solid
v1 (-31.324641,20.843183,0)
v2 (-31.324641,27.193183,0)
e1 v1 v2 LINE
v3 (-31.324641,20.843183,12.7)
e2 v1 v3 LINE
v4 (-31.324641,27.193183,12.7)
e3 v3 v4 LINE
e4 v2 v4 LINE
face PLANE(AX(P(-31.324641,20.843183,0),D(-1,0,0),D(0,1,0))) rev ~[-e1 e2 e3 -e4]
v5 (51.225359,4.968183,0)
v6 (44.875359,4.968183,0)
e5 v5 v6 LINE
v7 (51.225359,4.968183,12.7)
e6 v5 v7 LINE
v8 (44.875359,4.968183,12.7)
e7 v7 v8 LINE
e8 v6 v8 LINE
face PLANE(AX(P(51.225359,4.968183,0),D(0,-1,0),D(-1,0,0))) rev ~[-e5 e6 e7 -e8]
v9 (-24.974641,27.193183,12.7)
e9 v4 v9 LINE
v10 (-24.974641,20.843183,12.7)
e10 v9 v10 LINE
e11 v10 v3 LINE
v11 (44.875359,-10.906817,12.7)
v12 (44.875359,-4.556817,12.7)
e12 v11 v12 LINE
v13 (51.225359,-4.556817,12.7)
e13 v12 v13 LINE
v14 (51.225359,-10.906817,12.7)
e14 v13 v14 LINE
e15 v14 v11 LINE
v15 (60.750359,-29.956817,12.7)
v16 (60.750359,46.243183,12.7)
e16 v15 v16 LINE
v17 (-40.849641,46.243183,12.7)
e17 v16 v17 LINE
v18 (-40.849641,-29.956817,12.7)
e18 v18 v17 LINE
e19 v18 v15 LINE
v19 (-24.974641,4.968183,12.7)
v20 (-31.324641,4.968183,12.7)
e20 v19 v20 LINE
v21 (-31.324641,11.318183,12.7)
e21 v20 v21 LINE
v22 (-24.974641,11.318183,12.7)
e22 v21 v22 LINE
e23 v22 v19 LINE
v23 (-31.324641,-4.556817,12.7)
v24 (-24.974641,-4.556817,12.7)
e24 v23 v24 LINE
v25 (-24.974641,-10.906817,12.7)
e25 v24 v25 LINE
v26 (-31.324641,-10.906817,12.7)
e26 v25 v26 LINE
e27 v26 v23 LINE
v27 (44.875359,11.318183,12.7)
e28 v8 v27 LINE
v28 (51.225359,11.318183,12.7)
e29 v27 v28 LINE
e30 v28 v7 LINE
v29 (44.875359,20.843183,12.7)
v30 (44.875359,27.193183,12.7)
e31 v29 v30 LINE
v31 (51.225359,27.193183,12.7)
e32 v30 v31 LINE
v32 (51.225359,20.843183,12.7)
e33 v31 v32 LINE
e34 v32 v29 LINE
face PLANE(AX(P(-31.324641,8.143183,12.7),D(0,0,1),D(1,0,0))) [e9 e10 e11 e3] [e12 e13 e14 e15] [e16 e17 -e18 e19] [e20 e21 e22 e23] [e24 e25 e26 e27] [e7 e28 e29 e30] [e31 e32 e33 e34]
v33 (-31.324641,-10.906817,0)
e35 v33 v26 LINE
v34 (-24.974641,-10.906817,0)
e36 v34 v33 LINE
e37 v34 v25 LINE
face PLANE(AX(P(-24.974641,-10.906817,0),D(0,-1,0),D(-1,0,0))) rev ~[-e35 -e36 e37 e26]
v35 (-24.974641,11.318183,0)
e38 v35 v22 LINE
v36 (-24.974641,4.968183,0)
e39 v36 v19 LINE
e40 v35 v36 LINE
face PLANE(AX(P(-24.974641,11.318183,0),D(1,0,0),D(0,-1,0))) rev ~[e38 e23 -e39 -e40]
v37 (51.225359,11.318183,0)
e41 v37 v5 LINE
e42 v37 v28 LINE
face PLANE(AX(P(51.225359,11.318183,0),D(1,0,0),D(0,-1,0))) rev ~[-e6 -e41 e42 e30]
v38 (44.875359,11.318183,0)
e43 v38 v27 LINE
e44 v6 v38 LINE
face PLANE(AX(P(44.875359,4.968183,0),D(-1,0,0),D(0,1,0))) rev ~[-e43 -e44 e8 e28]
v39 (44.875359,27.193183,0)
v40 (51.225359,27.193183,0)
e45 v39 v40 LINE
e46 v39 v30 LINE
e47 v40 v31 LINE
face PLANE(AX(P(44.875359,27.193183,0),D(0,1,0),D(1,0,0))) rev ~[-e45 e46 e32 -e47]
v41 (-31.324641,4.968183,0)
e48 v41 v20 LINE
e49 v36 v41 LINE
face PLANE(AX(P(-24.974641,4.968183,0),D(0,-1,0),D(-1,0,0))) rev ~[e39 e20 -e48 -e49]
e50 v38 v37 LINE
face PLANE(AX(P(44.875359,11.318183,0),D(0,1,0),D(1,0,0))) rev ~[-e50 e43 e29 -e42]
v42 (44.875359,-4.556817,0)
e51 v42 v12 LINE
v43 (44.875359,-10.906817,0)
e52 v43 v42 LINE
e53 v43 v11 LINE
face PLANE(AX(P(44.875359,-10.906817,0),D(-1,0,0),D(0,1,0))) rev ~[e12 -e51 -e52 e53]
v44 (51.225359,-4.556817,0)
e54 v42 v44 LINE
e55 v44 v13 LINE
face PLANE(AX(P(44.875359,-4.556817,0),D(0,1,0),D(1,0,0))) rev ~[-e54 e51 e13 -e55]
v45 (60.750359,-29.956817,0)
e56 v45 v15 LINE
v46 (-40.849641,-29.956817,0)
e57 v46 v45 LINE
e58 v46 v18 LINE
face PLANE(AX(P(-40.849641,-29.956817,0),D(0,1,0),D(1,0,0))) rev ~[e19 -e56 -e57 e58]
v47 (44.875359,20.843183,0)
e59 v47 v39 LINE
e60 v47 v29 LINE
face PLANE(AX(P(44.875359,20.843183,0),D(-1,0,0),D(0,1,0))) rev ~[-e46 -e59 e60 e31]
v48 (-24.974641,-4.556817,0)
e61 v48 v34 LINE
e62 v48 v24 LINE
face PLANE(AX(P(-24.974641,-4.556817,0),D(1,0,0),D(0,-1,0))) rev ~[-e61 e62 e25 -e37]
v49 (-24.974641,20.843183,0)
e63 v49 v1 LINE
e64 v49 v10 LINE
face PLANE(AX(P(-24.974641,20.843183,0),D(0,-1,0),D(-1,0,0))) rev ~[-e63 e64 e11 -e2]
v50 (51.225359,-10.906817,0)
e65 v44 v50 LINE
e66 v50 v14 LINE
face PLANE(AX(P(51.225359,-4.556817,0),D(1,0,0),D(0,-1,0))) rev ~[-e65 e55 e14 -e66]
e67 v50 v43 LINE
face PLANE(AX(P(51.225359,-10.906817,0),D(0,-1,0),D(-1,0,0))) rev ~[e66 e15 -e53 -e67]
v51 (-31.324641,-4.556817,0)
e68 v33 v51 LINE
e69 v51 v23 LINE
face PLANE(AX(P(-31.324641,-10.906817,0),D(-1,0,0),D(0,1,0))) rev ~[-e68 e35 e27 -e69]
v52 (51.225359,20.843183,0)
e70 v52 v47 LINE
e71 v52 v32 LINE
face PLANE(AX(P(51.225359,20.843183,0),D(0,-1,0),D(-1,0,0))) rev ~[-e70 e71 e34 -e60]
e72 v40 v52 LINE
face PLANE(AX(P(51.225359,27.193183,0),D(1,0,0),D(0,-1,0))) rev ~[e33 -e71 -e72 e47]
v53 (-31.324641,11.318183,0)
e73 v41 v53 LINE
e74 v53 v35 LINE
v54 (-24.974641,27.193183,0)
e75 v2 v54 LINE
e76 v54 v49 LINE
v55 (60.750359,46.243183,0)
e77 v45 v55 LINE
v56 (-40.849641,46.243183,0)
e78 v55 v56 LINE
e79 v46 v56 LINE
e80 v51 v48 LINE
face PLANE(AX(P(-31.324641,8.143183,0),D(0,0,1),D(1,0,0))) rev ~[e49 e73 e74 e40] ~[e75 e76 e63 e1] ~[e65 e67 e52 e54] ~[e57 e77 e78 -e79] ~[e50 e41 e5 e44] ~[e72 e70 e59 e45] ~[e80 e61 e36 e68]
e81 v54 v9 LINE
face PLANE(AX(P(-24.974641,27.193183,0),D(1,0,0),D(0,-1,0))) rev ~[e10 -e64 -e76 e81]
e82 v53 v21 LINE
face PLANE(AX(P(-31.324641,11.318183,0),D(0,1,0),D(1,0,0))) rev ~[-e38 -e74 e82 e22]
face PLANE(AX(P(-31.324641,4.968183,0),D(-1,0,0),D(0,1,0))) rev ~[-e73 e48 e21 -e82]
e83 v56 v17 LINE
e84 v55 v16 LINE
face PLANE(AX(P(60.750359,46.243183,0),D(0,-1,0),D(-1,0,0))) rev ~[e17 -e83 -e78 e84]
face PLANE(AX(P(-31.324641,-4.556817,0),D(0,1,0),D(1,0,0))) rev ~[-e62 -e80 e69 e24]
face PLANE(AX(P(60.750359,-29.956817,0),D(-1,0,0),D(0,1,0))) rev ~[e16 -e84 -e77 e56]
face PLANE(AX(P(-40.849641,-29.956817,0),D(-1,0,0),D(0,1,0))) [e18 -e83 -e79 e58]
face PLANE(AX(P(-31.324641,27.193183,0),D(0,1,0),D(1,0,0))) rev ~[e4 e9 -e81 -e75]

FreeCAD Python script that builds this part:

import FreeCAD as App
import Part
import Sketcher
from FreeCAD import Vector
Q = App.Units.Quantity


def add_polygon(sketch, points):
    """Adds a closed chain of lines whose ends are joined by coincident constraints."""
    first, n = sketch.GeometryCount, len(points)
    for a, b in zip(points, points[1:] + points[:1]):
        sketch.addGeometry(Part.LineSegment(App.Vector(*a, 0), App.Vector(*b, 0)), False)
    for i in range(n):
        sketch.addConstraint(Sketcher.Constraint("Coincident", first + i, 2, first + (i + 1) % n, 1))

doc = App.newDocument("Part")
params = doc.addObject("Spreadsheet::Sheet", "Params")
for row, (alias, value) in enumerate([
    ("sketch1_width", "4 in"),
    ("sketch1_height", "3 in"),
    ("sketch1_width2", "0.25 in"),
    ("pad1_length", "0.5 in"),
], start=1):
    params.set(f"A{row}", alias)
    params.set(f"B{row}", "=" + value)
    params.setAlias(f"B{row}", alias)

body = doc.addObject("PartDesign::Body", "Body")

# Sketch on XY plane
sketch1 = body.newObject("Sketcher::SketchObject", "Sketch")
sketch1.AttachmentSupport = (doc.getObject("XY_Plane"), [""])
sketch1.MapMode = "FlatFace"
add_polygon(sketch1, [(-41, 46), (-41, -30), (61, -30), (61, 46)])  # lines 0-3
add_polygon(sketch1, [(45, -11), (45, -5), (51, -5), (51, -11)])  # lines 4-7
add_polygon(sketch1, [(45, 5), (45, 11), (51, 11), (51, 5)])  # lines 8-11
add_polygon(sketch1, [(45, 21), (45, 27), (51, 27), (51, 21)])  # lines 12-15
add_polygon(sketch1, [(-31, -11), (-31, -5), (-25, -5), (-25, -11)])  # lines 16-19
add_polygon(sketch1, [(-31, 5), (-31, 11), (-25, 11), (-25, 5)])  # lines 20-23
add_polygon(sketch1, [(-31, 21), (-31, 27), (-25, 27), (-25, 21)])  # lines 24-27
sketch1.addConstraint(Sketcher.Constraint("Vertical", 0))
sketch1.addConstraint(Sketcher.Constraint("Horizontal", 1))
sketch1.addConstraint(Sketcher.Constraint("Vertical", 2))
sketch1.addConstraint(Sketcher.Constraint("Horizontal", 3))
sketch1.addConstraint(Sketcher.Constraint("Vertical", 4))
sketch1.addConstraint(Sketcher.Constraint("Horizontal", 5))
sketch1.addConstraint(Sketcher.Constraint("Vertical", 6))
sketch1.addConstraint(Sketcher.Constraint("Horizontal", 7))
sketch1.addConstraint(Sketcher.Constraint("Vertical", 8))
sketch1.addConstraint(Sketcher.Constraint("Horizontal", 9))
sketch1.addConstraint(Sketcher.Constraint("Vertical", 10))
sketch1.addConstraint(Sketcher.Constraint("Horizontal", 11))
sketch1.addConstraint(Sketcher.Constraint("Vertical", 12))
sketch1.addConstraint(Sketcher.Constraint("Horizontal", 13))
sketch1.addConstraint(Sketcher.Constraint("Vertical", 14))
sketch1.addConstraint(Sketcher.Constraint("Horizontal", 15))
sketch1.addConstraint(Sketcher.Constraint("Vertical", 16))
sketch1.addConstraint(Sketcher.Constraint("Horizontal", 17))
sketch1.addConstraint(Sketcher.Constraint("Vertical", 18))
sketch1.addConstraint(Sketcher.Constraint("Horizontal", 19))
sketch1.addConstraint(Sketcher.Constraint("Vertical", 20))
sketch1.addConstraint(Sketcher.Constraint("Horizontal", 21))
sketch1.addConstraint(Sketcher.Constraint("Vertical", 22))
sketch1.addConstraint(Sketcher.Constraint("Horizontal", 23))
sketch1.addConstraint(Sketcher.Constraint("Vertical", 24))
sketch1.addConstraint(Sketcher.Constraint("Horizontal", 25))
sketch1.addConstraint(Sketcher.Constraint("Vertical", 26))
sketch1.addConstraint(Sketcher.Constraint("Horizontal", 27))
sketch1.addConstraint(Sketcher.Constraint("Horizontal", 5, 2, 16, 2))
sketch1.addConstraint(Sketcher.Constraint("Horizontal", 7, 2, 18, 2))
sketch1.addConstraint(Sketcher.Constraint("Horizontal", 9, 2, 20, 2))
sketch1.addConstraint(Sketcher.Constraint("Horizontal", 11, 2, 22, 2))
sketch1.addConstraint(Sketcher.Constraint("Horizontal", 13, 2, 24, 2))
sketch1.addConstraint(Sketcher.Constraint("Horizontal", 15, 2, 26, 2))
sketch1.addConstraint(Sketcher.Constraint("Vertical", 7, 2, 8, 2))
sketch1.addConstraint(Sketcher.Constraint("Vertical", 6, 2, 9, 2))
sketch1.addConstraint(Sketcher.Constraint("Vertical", 11, 2, 12, 2))
sketch1.addConstraint(Sketcher.Constraint("Vertical", 10, 2, 13, 2))
sketch1.addConstraint(Sketcher.Constraint("Vertical", 19, 2, 20, 2))
sketch1.addConstraint(Sketcher.Constraint("Vertical", 18, 2, 21, 2))
sketch1.addConstraint(Sketcher.Constraint("Vertical", 23, 2, 24, 2))
sketch1.addConstraint(Sketcher.Constraint("Vertical", 22, 2, 25, 2))
sketch1.addConstraint(Sketcher.Constraint("Equal", 15, 17))
sketch1.addConstraint(Sketcher.Constraint("Equal", 27, 4))
sketch1.addConstraint(Sketcher.Constraint("Equal", 6, 8))
sketch1.addConstraint(Sketcher.Constraint("Equal", 10, 12))
sketch1.addConstraint(Sketcher.Constraint("DistanceX", 1, 1, 1, 2, Q("4 in")))
sketch1.addConstraint(Sketcher.Constraint("DistanceY", 0, 2, 0, 1, Q("3 in")))
sketch1.addConstraint(Sketcher.Constraint("DistanceY", 1, 2, 4, 2, Q("1 in")))
sketch1.addConstraint(Sketcher.Constraint("DistanceX", 16, 2, 4, 2, Q("3 in")))
sketch1.addConstraint(Sketcher.Constraint("DistanceX", 5, 1, 5, 2, Q("0.25 in")))
sketch1.addConstraint(Sketcher.Constraint("DistanceY", 12, 2, 2, 2, Q("0.75 in")))
sketch1.addConstraint(Sketcher.Constraint("DistanceX", 4, 2, 1, 2, Q("0.625 in")))
sketch1.addConstraint(Sketcher.Constraint("DistanceY", 4, 2, 8, 2, Q("0.625 in")))
sketch1.addConstraint(Sketcher.Constraint("DistanceX", 0, 2, -1, 1, 40.849641))
sketch1.addConstraint(Sketcher.Constraint("DistanceY", 0, 2, -1, 1, 29.956817))
sketch1.setExpression("Constraints[74]", "Params.sketch1_width")
sketch1.setExpression("Constraints[75]", "Params.sketch1_height")
sketch1.setExpression("Constraints[78]", "Params.sketch1_width2")
pad1 = body.newObject("PartDesign::Pad", "Pad")
pad1.Profile = sketch1
pad1.setExpression("Length", "Params.pad1_length")

doc.recompute()
